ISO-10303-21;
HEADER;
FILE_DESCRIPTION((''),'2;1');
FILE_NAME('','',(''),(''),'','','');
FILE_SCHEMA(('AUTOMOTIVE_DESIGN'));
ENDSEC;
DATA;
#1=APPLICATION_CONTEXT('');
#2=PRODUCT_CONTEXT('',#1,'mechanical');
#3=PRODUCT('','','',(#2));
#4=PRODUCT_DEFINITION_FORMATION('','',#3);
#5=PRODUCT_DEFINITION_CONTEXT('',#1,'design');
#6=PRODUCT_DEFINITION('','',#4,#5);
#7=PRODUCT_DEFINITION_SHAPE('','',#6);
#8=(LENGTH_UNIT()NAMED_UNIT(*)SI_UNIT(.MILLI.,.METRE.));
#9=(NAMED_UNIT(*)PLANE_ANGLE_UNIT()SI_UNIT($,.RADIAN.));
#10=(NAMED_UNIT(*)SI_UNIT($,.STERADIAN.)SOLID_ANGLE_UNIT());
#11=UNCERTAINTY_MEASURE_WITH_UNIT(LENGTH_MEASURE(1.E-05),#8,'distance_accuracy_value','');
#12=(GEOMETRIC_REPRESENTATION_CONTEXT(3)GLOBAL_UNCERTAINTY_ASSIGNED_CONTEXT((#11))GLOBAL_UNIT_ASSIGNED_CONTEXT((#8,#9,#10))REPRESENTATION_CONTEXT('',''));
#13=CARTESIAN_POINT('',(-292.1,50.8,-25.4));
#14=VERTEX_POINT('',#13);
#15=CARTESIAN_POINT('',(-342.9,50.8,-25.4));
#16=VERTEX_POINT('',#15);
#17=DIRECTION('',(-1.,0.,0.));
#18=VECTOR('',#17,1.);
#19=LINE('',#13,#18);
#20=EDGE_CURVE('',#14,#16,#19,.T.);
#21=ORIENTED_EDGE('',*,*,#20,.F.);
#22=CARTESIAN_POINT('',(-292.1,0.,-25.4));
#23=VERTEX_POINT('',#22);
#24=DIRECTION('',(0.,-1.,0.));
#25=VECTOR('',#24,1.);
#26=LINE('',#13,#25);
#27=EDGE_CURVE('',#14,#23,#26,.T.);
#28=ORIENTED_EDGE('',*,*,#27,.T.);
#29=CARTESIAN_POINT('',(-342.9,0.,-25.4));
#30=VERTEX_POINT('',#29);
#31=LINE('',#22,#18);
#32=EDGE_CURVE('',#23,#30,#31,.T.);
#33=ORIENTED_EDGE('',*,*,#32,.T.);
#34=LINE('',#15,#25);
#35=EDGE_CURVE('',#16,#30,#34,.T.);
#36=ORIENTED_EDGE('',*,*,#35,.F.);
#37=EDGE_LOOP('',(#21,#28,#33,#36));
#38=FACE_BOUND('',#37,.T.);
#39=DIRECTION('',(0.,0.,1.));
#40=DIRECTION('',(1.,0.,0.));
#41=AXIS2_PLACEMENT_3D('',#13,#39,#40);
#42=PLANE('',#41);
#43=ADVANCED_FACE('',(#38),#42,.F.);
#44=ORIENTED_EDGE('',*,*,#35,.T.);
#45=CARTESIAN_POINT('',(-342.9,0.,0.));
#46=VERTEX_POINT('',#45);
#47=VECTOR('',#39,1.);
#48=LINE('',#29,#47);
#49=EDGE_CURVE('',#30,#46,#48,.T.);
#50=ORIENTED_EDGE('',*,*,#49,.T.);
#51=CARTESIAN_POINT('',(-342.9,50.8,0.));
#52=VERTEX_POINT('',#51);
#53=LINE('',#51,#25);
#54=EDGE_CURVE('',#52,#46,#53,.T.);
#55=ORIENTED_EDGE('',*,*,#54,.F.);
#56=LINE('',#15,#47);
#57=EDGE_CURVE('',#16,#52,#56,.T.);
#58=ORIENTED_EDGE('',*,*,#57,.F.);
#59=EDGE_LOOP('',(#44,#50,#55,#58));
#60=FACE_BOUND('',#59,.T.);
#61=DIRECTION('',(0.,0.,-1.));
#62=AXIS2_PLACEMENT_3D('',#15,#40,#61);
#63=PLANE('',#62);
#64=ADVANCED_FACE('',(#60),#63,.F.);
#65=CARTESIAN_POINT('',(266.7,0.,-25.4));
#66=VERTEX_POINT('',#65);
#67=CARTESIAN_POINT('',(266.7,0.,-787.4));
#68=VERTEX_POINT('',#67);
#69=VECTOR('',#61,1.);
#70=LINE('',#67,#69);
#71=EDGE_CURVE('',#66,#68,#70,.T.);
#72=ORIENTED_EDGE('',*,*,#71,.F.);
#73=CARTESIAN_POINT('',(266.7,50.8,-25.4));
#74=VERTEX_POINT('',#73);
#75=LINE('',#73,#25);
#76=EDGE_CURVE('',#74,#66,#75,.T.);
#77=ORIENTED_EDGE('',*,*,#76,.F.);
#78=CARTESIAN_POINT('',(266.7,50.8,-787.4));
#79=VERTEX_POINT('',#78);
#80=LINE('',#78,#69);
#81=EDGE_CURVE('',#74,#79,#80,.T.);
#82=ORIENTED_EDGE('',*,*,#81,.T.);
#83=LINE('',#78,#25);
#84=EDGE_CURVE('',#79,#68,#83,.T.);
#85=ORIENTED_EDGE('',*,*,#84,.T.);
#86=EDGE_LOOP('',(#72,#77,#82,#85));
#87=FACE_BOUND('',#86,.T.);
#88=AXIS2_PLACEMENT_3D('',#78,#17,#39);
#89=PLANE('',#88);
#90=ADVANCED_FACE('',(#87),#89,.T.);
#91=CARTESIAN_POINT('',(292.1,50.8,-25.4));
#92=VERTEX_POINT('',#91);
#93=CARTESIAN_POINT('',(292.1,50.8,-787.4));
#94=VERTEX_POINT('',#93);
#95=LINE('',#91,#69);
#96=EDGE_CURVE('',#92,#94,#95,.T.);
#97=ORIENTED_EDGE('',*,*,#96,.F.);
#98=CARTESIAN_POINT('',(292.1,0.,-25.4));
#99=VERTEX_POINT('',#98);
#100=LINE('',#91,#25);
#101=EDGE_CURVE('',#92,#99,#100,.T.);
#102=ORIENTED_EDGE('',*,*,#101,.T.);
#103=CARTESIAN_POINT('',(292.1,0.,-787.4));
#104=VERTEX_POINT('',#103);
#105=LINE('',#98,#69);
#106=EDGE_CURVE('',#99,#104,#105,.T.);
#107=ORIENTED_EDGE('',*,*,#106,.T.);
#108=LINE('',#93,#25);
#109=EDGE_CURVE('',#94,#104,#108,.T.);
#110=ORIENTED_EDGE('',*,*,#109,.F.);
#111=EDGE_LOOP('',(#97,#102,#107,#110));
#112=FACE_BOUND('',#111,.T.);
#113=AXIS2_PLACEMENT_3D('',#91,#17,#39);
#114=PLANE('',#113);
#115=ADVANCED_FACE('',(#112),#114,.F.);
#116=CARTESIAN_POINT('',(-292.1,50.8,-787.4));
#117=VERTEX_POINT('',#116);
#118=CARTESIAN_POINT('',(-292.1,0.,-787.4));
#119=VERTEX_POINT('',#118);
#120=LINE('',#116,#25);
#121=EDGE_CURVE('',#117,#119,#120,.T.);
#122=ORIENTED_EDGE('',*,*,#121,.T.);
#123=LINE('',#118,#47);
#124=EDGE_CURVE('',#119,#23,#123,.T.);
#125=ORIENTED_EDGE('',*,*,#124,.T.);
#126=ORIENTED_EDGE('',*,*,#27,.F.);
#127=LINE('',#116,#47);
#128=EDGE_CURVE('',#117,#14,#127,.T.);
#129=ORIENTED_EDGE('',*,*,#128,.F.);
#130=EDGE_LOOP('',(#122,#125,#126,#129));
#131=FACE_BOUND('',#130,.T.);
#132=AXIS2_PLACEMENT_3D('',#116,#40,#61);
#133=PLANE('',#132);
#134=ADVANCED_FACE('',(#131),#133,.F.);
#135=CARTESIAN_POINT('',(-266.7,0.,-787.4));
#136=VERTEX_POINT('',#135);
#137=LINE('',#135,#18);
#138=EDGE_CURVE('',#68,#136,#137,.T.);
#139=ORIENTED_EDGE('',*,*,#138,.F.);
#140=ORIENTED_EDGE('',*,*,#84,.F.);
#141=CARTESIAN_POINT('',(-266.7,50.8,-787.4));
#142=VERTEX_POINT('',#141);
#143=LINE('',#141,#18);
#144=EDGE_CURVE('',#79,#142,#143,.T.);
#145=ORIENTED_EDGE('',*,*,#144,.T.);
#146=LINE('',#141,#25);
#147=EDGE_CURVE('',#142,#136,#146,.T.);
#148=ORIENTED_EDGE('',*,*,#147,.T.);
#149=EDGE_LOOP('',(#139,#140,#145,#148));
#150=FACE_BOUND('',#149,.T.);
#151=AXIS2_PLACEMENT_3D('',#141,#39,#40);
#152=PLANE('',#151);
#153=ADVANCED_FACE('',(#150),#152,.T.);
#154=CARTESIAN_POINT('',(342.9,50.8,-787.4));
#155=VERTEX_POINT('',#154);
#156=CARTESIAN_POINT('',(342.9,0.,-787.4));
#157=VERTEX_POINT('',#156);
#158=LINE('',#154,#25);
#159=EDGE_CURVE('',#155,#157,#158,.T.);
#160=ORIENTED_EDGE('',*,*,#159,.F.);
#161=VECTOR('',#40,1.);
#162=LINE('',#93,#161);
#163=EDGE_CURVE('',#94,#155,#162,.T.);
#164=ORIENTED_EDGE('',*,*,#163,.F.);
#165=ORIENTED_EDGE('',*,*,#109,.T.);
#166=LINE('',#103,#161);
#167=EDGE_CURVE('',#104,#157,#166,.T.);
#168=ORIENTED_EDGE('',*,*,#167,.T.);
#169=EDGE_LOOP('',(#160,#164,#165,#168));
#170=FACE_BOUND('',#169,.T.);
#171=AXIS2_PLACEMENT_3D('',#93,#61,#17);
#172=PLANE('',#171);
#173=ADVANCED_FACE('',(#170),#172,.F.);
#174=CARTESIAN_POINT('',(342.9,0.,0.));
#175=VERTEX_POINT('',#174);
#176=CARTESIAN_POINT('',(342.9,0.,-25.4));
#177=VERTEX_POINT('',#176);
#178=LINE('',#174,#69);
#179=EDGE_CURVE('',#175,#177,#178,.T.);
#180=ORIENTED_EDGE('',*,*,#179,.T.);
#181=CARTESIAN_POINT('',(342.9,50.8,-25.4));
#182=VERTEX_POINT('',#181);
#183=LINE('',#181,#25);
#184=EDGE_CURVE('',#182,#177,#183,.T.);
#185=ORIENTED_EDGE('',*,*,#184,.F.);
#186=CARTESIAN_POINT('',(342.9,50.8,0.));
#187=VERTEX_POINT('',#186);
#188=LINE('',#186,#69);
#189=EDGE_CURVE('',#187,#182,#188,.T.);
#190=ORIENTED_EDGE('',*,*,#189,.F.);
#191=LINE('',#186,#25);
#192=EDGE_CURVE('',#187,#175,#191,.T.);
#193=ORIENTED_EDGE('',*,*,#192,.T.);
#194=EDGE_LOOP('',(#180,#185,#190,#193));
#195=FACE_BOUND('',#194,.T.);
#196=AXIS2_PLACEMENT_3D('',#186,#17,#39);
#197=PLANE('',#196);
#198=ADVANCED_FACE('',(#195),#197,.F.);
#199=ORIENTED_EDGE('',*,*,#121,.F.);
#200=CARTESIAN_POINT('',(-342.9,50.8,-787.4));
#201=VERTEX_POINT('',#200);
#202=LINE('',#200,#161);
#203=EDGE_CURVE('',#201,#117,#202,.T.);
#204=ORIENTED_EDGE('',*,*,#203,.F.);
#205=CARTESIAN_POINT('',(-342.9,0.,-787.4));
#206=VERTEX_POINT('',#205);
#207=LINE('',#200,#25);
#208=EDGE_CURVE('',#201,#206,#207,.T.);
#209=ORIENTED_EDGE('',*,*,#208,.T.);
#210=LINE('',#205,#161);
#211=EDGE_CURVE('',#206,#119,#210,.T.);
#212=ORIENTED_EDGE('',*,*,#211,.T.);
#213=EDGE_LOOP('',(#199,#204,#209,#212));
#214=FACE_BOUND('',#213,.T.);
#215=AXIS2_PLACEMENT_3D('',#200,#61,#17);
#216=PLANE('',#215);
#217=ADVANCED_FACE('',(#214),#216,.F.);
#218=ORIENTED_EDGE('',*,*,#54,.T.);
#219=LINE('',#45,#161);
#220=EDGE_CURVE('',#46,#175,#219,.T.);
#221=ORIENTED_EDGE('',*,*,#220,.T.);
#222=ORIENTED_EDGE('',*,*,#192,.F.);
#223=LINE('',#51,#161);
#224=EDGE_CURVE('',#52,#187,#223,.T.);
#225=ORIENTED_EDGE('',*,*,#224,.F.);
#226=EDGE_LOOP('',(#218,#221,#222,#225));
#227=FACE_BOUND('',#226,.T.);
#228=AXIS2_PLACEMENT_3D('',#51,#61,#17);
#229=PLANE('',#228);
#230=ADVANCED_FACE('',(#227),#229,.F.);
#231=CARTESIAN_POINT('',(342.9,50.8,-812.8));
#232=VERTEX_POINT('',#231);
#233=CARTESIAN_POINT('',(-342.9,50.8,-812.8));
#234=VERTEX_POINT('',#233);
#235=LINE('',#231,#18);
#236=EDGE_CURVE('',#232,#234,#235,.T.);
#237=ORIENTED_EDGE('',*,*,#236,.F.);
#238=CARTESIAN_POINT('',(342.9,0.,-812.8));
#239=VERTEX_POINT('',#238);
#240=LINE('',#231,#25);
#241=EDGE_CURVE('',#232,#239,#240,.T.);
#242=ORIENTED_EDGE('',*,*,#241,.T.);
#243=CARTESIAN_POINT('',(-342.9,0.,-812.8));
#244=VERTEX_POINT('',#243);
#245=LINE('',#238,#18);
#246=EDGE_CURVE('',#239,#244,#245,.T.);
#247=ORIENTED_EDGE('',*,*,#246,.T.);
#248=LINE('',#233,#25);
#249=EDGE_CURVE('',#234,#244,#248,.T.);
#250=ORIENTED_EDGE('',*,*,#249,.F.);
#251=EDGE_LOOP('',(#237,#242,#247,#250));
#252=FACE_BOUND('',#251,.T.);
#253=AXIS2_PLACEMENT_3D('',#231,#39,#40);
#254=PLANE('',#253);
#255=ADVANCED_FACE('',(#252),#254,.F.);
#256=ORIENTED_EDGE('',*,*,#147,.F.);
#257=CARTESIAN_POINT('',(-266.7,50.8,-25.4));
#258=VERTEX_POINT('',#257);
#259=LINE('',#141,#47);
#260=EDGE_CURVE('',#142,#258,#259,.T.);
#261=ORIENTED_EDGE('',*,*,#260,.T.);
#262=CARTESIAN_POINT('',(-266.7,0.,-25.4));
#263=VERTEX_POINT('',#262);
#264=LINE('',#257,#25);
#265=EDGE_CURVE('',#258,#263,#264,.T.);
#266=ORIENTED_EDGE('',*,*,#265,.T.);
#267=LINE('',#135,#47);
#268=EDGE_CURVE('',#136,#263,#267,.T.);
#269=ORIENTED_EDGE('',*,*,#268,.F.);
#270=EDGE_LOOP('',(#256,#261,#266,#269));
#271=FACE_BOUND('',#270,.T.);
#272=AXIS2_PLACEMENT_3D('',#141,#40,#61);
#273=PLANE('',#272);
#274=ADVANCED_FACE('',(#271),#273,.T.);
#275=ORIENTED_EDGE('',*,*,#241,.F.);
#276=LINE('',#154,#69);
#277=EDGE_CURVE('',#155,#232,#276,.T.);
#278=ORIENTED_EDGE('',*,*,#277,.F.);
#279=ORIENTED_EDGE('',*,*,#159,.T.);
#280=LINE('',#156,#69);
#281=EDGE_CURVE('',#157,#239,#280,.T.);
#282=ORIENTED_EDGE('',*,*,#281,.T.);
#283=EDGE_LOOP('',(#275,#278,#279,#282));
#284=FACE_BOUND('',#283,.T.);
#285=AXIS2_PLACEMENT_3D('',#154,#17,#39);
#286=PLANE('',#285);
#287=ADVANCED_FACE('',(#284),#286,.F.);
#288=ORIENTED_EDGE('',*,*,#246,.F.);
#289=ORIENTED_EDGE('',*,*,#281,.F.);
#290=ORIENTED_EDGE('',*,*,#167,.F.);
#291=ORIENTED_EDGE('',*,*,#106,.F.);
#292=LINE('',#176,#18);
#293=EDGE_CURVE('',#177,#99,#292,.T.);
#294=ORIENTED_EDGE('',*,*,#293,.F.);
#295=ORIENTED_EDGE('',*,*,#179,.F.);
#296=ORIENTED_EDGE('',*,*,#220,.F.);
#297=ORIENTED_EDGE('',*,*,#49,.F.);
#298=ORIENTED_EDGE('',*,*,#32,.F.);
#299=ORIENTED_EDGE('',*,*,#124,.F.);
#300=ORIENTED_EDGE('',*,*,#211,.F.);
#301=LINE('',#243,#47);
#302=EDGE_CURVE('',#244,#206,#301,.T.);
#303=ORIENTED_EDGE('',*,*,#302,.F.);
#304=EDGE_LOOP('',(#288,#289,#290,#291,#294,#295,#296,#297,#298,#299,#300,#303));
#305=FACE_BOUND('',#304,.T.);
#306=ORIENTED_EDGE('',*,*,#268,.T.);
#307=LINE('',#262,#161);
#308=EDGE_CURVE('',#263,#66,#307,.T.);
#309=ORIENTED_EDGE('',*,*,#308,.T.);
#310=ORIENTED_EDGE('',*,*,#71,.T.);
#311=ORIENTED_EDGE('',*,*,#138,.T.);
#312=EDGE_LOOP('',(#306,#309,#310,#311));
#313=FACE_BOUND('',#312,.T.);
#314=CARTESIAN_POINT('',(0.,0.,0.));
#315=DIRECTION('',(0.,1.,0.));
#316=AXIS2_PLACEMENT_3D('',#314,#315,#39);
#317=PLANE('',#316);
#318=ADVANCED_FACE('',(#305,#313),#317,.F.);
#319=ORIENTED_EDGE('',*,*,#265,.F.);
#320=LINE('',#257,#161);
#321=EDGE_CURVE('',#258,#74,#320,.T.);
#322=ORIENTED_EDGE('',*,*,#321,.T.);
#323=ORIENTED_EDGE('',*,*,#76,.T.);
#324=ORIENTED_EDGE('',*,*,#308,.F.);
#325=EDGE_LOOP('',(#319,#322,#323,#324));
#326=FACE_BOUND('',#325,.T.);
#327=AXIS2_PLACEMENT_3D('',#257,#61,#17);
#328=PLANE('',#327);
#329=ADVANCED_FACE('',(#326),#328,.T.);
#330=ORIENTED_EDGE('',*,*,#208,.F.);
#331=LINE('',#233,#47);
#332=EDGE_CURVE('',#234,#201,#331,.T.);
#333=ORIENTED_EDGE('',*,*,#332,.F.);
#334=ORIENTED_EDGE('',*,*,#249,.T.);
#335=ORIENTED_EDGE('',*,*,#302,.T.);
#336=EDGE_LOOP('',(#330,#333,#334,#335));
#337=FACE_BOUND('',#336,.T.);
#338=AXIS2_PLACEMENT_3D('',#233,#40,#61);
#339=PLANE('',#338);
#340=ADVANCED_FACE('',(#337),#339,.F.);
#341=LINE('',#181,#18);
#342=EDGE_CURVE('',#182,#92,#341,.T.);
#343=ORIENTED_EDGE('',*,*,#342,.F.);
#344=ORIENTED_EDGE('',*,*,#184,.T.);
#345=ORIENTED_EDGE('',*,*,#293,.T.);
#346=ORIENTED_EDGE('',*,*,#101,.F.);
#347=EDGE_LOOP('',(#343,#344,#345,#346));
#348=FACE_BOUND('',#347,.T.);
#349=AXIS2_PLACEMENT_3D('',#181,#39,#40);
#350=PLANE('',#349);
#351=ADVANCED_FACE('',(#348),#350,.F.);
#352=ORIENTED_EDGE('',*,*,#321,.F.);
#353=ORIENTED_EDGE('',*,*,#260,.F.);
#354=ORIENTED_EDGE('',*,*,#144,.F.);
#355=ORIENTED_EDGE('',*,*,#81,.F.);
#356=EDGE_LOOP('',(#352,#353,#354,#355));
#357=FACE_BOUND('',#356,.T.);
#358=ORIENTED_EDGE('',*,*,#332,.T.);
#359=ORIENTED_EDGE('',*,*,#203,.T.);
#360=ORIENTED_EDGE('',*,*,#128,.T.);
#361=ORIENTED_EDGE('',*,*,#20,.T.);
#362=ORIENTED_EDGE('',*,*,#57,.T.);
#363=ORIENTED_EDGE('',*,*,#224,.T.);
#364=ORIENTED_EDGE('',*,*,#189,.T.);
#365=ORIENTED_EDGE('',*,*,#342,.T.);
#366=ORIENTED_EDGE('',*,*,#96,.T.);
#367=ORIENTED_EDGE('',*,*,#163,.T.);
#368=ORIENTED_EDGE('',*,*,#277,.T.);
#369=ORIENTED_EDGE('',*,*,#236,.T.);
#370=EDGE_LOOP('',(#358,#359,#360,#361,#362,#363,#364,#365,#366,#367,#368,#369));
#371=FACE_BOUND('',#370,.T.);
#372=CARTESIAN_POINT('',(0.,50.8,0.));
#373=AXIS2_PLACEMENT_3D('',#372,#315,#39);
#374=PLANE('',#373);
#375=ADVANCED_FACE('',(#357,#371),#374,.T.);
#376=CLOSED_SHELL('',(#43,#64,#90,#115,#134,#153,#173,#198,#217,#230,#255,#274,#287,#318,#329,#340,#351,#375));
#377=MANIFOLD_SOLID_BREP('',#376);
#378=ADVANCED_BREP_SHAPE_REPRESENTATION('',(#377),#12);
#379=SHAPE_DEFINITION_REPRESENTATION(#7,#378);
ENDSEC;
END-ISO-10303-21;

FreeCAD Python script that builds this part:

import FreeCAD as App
import Part
import Sketcher
Q = App.Units.Quantity


def add_polygon(sketch, points):
    """Adds a closed chain of lines whose ends are joined by coincident constraints."""
    first, n = sketch.GeometryCount, len(points)
    for a, b in zip(points, points[1:] + points[:1]):
        sketch.addGeometry(Part.LineSegment(App.Vector(*a, 0), App.Vector(*b, 0)), False)
    for i in range(n):
        sketch.addConstraint(Sketcher.Constraint("Coincident", first + i, 2, first + (i + 1) % n, 1))

doc = App.newDocument("Part")
params = doc.addObject("Spreadsheet::Sheet", "Params")
for row, (alias, value) in enumerate([
    ("sketch1_width", "27 in"),
    ("sketch1_width2", "2 in"),
    ("sketch1_width3", "21 in"),
    ("sketch1_height", "1 in"),
    ("sketch1_height2", "30 in"),
    ("pad1_length", "2 in"),
], start=1):
    params.set(f"A{row}", alias)
    params.set(f"B{row}", "=" + value)
    params.setAlias(f"B{row}", alias)

body = doc.addObject("PartDesign::Body", "Body")

# Sketch on XZ plane
sketch1 = doc.addObject("Sketcher::SketchObject", "Sketch")
body.addObject(sketch1)
sketch1.AttachmentSupport = (doc.XZ_Plane, [""])
sketch1.MapMode = "FlatFace"
add_polygon(sketch1, [(-343, 0), (343, 0), (343, -25), (292, -25), (292, -787), (343, -787), (343, -813), (-343, -813), (-343, -787), (-292, -787), (-292, -25), (-343, -25)])  # lines 0-11
add_polygon(sketch1, [(267, -25), (-267, -25), (-267, -787), (267, -787)])  # lines 12-15
sketch1.addConstraint([
    Sketcher.Constraint("Horizontal", 0),
    Sketcher.Constraint("Vertical", 1),
    Sketcher.Constraint("Horizontal", 2),
    Sketcher.Constraint("Vertical", 3),
    Sketcher.Constraint("Horizontal", 4),
    Sketcher.Constraint("Vertical", 5),
    Sketcher.Constraint("Horizontal", 6),
    Sketcher.Constraint("Vertical", 7),
    Sketcher.Constraint("Horizontal", 8),
    Sketcher.Constraint("Vertical", 9),
    Sketcher.Constraint("Horizontal", 10),
    Sketcher.Constraint("Vertical", 11),
    Sketcher.Constraint("Horizontal", 12),
    Sketcher.Constraint("Vertical", 13),
    Sketcher.Constraint("Horizontal", 14),
    Sketcher.Constraint("Vertical", 15),
    Sketcher.Constraint("Symmetric", 0, 2, 11, 2, -1, 1),
    Sketcher.Constraint("Symmetric", 4, 2, 7, 2, -2),
    Sketcher.Constraint("Symmetric", 2, 2, 9, 2, -2),
    Sketcher.Constraint("Horizontal", 10, 2, 12, 2),
    Sketcher.Constraint("Horizontal", 8, 2, 13, 2),
    Sketcher.Constraint("Vertical", 1, 2, 4, 2),
    Sketcher.Constraint("Equal", 1, 5),
    Sketcher.Constraint("DistanceX", 0, 1, 0, 2, Q("27 in")),
    Sketcher.Constraint("DistanceX", 2, 2, 2, 1, Q("2 in")),
    Sketcher.Constraint("DistanceX", 12, 2, 12, 1, Q("21 in")),
    Sketcher.Constraint("DistanceY", 1, 2, 1, 1, Q("1 in")),
    Sketcher.Constraint("DistanceY", 3, 2, 3, 1, Q("30 in")),
    Sketcher.Constraint("DistanceX", 9, 2, 12, 2, Q("1 in")),
])
sketch1.setExpression("Constraints[39]", "Params.sketch1_width")
sketch1.setExpression("Constraints[40]", "Params.sketch1_width2")
sketch1.setExpression("Constraints[41]", "Params.sketch1_width3")
sketch1.setExpression("Constraints[42]", "Params.sketch1_height")
sketch1.setExpression("Constraints[43]", "Params.sketch1_height2")
pad1 = doc.addObject("PartDesign::Pad", "Pad")
body.addObject(pad1)
pad1.Profile = sketch1
pad1.setExpression("Length", "Params.pad1_length")
pad1.Reversed = True

doc.recompute()
